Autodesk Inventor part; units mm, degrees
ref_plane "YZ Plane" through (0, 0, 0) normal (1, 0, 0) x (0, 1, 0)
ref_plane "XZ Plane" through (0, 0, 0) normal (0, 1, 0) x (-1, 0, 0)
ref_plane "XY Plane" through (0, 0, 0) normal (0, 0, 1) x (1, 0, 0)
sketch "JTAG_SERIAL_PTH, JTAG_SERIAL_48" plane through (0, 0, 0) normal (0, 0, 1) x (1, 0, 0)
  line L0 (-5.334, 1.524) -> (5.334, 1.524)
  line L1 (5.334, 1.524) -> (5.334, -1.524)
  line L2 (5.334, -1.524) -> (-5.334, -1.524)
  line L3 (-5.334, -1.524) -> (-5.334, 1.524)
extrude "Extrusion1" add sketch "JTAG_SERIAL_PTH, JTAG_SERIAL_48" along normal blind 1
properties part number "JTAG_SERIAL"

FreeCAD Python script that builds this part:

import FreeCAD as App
import Part
import Sketcher
Q = App.Units.Quantity

doc = App.newDocument("Part")
params = doc.addObject("Spreadsheet::Sheet", "Params")
for row, (alias, value) in enumerate([
    ("sketch1_width", "0.42 in"),
    ("sketch1_height", "0.12 in"),
    ("pad1_length", "1 mm"),
], start=1):
    params.set(f"A{row}", alias)
    params.set(f"B{row}", "=" + value)
    params.setAlias(f"B{row}", alias)

body = doc.addObject("PartDesign::Body", "Body")

# Sketch on XY plane
sketch1 = body.newObject("Sketcher::SketchObject", "Sketch")
sketch1.AttachmentSupport = (doc.getObject("XY_Plane"), [""])
sketch1.MapMode = "FlatFace"
sketch1.addGeometry([
    Part.LineSegment(App.Vector(5.3, 1.5, 0), App.Vector(-5.3, 1.5, 0)),
    Part.LineSegment(App.Vector(-5.3, 1.5, 0), App.Vector(-5.3, -1.5, 0)),
    Part.LineSegment(App.Vector(-5.3, -1.5, 0), App.Vector(5.3, -1.5, 0)),
    Part.LineSegment(App.Vector(5.3, -1.5, 0), App.Vector(5.3, 1.5, 0)),
], False)
sketch1.addConstraint([
    Sketcher.Constraint("Coincident", 0, 2, 1, 1),
    Sketcher.Constraint("Coincident", 1, 2, 2, 1),
    Sketcher.Constraint("Coincident", 2, 2, 3, 1),
    Sketcher.Constraint("Coincident", 3, 2, 0, 1),
    Sketcher.Constraint("Horizontal", 0),
    Sketcher.Constraint("Vertical", 1),
    Sketcher.Constraint("Horizontal", 2),
    Sketcher.Constraint("Vertical", 3),
    Sketcher.Constraint("Symmetric", 0, 2, 2, 2, -1, 1),
    Sketcher.Constraint("DistanceX", 0, 2, 0, 1, Q("0.42 in")),
    Sketcher.Constraint("DistanceY", 1, 2, 1, 1, Q("0.12 in")),
])
sketch1.setExpression("Constraints[9]", "Params.sketch1_width")
sketch1.setExpression("Constraints[10]", "Params.sketch1_height")
pad1 = body.newObject("PartDesign::Pad", "Pad")
pad1.Profile = sketch1
pad1.setExpression("Length", "Params.pad1_length")

doc.recompute()
